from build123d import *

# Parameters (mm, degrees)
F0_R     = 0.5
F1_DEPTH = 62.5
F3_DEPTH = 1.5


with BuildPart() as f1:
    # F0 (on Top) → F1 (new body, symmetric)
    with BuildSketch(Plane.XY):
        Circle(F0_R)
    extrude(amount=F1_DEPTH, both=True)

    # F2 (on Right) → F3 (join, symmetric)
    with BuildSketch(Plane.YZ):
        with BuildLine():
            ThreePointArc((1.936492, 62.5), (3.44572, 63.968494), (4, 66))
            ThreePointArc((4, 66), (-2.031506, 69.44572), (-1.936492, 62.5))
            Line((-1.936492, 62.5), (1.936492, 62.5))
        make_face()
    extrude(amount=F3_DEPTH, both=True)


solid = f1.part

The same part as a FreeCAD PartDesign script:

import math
import FreeCAD as App
import Part
import Sketcher

V = App.Vector
Q = App.Units.Quantity

doc = App.newDocument("Part")
body = doc.addObject("PartDesign::Body", "Body")

# Sketch on XY plane
sketch1 = doc.addObject("Sketcher::SketchObject", "Sketch")
body.addObject(sketch1)
sketch1.AttachmentSupport = (doc.XY_Plane, [""])
sketch1.MapMode = "FlatFace"
sketch1.addGeometry(Part.Circle(V(0, 0, 0), V(0, 0, 1), 0.5), False)
sketch1.addConstraint([
    Sketcher.Constraint("Coincident", 0, 3, -1, 1),
    Sketcher.Constraint("Diameter", 0, Q("1 mm")),
])
pad1 = doc.addObject("PartDesign::Pad", "Pad")
body.addObject(pad1)
pad1.Profile = sketch1
pad1.Length = 125
pad1.Midplane = True

# Sketch on YZ plane
sketch2 = doc.addObject("Sketcher::SketchObject", "Sketch001")
body.addObject(sketch2)
sketch2.AttachmentSupport = (doc.YZ_Plane, [""])
sketch2.MapMode = "FlatFace"
sketch2.addGeometry([
    Part.ArcOfCircle(Part.Circle(V(0, 66, 0), V(0, 0, 1), 4), math.radians(-61), math.radians(0)),
    Part.ArcOfCircle(Part.Circle(V(0, 66, 0), V(0, 0, 1), 4), math.radians(0), math.radians(241)),
    Part.LineSegment(V(-1.9, 62.5, 0), V(1.9, 62.5, 0)),
], False)
sketch2.addConstraint([
    Sketcher.Constraint("Tangent", 0, 2, 1, 1),
    Sketcher.Constraint("Coincident", 1, 2, 2, 1),
    Sketcher.Constraint("Coincident", 2, 2, 0, 1),
    Sketcher.Constraint("Horizontal", 2),
    Sketcher.Constraint("Equal", 0, 1),
    Sketcher.Constraint("PointOnObject", 0, 3, -2),
    Sketcher.Constraint("Horizontal", 1, 3, 0, 2),
    Sketcher.Constraint("Radius", 0, Q("3.999998 mm")),
    Sketcher.Constraint("DistanceY", -1, 1, 0, 3, Q("65.999999 mm")),
    Sketcher.Constraint("DistanceY", -1, 1, 1, 2, Q("62.5 mm")),
])
pad2 = doc.addObject("PartDesign::Pad", "Pad001")
body.addObject(pad2)
pad2.Profile = sketch2
pad2.Length = 3
pad2.Midplane = True

doc.recompute()
